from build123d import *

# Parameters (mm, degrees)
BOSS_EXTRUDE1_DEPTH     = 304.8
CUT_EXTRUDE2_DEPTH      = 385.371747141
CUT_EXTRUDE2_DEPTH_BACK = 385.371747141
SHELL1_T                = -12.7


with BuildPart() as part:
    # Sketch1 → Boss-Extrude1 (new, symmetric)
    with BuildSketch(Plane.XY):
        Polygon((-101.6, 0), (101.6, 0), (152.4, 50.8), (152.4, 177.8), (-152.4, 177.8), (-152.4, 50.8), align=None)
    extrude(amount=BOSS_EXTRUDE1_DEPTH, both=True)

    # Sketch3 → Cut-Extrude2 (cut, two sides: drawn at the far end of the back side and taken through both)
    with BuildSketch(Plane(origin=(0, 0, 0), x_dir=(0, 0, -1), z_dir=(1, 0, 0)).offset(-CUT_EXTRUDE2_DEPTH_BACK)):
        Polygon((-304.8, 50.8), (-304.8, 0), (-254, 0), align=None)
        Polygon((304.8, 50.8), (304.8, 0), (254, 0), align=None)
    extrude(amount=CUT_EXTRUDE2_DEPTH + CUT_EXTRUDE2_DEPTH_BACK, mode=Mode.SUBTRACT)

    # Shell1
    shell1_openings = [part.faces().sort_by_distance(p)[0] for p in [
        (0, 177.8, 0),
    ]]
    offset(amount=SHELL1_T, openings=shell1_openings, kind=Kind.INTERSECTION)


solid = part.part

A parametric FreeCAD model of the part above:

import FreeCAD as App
import Part
import Sketcher
from FreeCAD import Vector
Q = App.Units.Quantity


def faces_at(feature, points):
    """Names of the faces that lie closest to the given points."""
    faces = feature.Shape.Faces
    near = lambda p: min(range(len(faces)), key=lambda i: faces[i].distToShape(Part.Vertex(*p))[0])
    return sorted({f"Face{near(p) + 1}" for p in points})


def add_polygon(sketch, points):
    """Adds a closed chain of lines whose ends are joined by coincident constraints."""
    first, n = sketch.GeometryCount, len(points)
    for a, b in zip(points, points[1:] + points[:1]):
        sketch.addGeometry(Part.LineSegment(App.Vector(*a, 0), App.Vector(*b, 0)), False)
    for i in range(n):
        sketch.addConstraint(Sketcher.Constraint("Coincident", first + i, 2, first + (i + 1) % n, 1))

doc = App.newDocument("Part")
body = doc.addObject("PartDesign::Body", "Body")

sketch1 = doc.addObject("Sketcher::SketchObject", "Sketch")
body.addObject(sketch1)
sketch1.AttachmentSupport = (doc.XY_Plane, [""])
sketch1.MapMode = "FlatFace"
add_polygon(sketch1, [(-102, 0), (102, 0), (152, 51), (152, 178), (-152, 178), (-152, 51)])
sketch1.addConstraint([
    Sketcher.Constraint("Horizontal", 0),
    Sketcher.Constraint("Vertical", 2),
    Sketcher.Constraint("Horizontal", 3),
    Sketcher.Constraint("Vertical", 4),
    Sketcher.Constraint("Symmetric", 0, 2, 5, 2, -1, 1),
    Sketcher.Constraint("Symmetric", 1, 2, 4, 2, -2),
    Sketcher.Constraint("Perpendicular", 1, 5),
    Sketcher.Constraint("DistanceX", 0, 1, 0, 2, Q("8 in")),
    Sketcher.Constraint("DistanceX", 3, 2, 3, 1, Q("12 in")),
    Sketcher.Constraint("DistanceY", 2, 1, 2, 2, Q("5 in")),
])
pad1 = doc.addObject("PartDesign::Pad", "Pad")
body.addObject(pad1)
pad1.Profile = sketch1
pad1.Length = Q("24 in")
pad1.Midplane = True

sketch2 = doc.addObject("Sketcher::SketchObject", "Sketch001")
body.addObject(sketch2)
sketch2.AttachmentSupport = (doc.YZ_Plane, [""])
sketch2.MapMode = "FlatFace"
add_polygon(sketch2, [(51, 305), (0, 305), (0, 254)])
add_polygon(sketch2, [(0, -305), (51, -305), (0, -254)])
sketch2.addConstraint([
    Sketcher.Constraint("Horizontal", 0),
    Sketcher.Constraint("Vertical", 1),
    Sketcher.Constraint("Horizontal", 3),
    Sketcher.Constraint("Vertical", 5),
    Sketcher.Constraint("Symmetric", 1, 2, 4, 2, -1, 1),
    Sketcher.Constraint("Symmetric", 2, 2, 3, 2, -1),
    Sketcher.Constraint("PointOnObject", 0, 2, -2),
    Sketcher.Constraint("Perpendicular", 2, 4),
    Sketcher.Constraint("DistanceX", 0, 2, 0, 1, Q("2 in")),
    Sketcher.Constraint("DistanceY", -1, 1, 0, 2, Q("12 in")),
])
pocket1 = doc.addObject("PartDesign::Pocket", "Pocket")
body.addObject(pocket1)
pocket1.Profile = sketch2
pocket1.Type = "ThroughAll"
pocket1.Midplane = True
doc.recompute()

thickness = doc.addObject("PartDesign::Thickness", "Thickness")
body.addObject(thickness)
thickness.Base = (pocket1, faces_at(pocket1, [(0, 177.8, 0)]))
thickness.Value = Q("0.5 in")
thickness.Reversed = True
thickness.Join = "Intersection"

doc.recompute()
